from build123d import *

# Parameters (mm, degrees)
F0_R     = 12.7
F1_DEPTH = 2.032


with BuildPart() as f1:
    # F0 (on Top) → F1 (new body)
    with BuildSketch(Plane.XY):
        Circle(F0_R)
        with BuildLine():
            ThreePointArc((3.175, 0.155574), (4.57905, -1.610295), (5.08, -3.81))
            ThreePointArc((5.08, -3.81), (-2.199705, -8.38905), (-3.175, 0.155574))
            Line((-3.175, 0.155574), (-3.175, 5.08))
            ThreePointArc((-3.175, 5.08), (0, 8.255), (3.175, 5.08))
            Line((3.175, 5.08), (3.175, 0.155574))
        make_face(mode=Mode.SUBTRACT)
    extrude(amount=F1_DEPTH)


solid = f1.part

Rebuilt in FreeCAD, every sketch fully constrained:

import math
import FreeCAD as App
import Part
import Sketcher
from FreeCAD import Vector
Q = App.Units.Quantity

doc = App.newDocument("Part")
body = doc.addObject("PartDesign::Body", "Body")

sketch1 = body.newObject("Sketcher::SketchObject", "Sketch")
sketch1.AttachmentSupport = (doc.getObject("XY_Plane"), [""])
sketch1.MapMode = "FlatFace"
sketch1.addGeometry([
    Part.Circle(Vector(0, 0, 0), Vector(0, 0, 1), 12.7),
    Part.LineSegment(Vector(3.175, 5.08, 0), Vector(3.175, 0.155574, 0)),
    Part.ArcOfCircle(Part.Circle(Vector(0, -3.81, 0), Vector(0, 0, 1), 5.08), math.radians(-0.000002), math.radians(51.317812)),
    Part.ArcOfCircle(Part.Circle(Vector(0, -3.81, 0), Vector(0, 0, 1), 5.08), math.radians(128.682185), math.radians(359.999999)),
    Part.LineSegment(Vector(-3.175, 0.155574, 0), Vector(-3.175, 5.08, 0)),
    Part.ArcOfCircle(Part.Circle(Vector(0, 5.08, 0), Vector(0, 0, 1), 3.175), math.radians(0), math.radians(180)),
], False)
sketch1.addConstraint([
    Sketcher.Constraint("Coincident", 1, 2, 2, 2),
    Sketcher.Constraint("Tangent", 2, 1, 3, 2),
    Sketcher.Constraint("Coincident", 3, 1, 4, 1),
    Sketcher.Constraint("Tangent", 4, 2, 5, 2),
    Sketcher.Constraint("Tangent", 5, 1, 1, 1),
    Sketcher.Constraint("Vertical", 1),
    Sketcher.Constraint("Vertical", 4),
    Sketcher.Constraint("Coincident", 0, 3, -1, 1),
    Sketcher.Constraint("Equal", 2, 3),
    Sketcher.Constraint("Symmetric", 1, 2, 3, 1, -2),
    Sketcher.Constraint("Horizontal", 3, 3, 2, 1),
    Sketcher.Constraint("Diameter", 0, Q("1 in")),
    Sketcher.Constraint("Radius", 2, Q("0.2 in")),
    Sketcher.Constraint("Radius", 5, Q("0.125 in")),
    Sketcher.Constraint("DistanceY", -1, 1, 5, 3, Q("0.2 in")),
    Sketcher.Constraint("DistanceY", 2, 3, -1, 1, Q("0.15 in")),
])
pad1 = body.newObject("PartDesign::Pad", "Pad")
pad1.Profile = sketch1
pad1.Length = Q("0.08 in")

doc.recompute()
